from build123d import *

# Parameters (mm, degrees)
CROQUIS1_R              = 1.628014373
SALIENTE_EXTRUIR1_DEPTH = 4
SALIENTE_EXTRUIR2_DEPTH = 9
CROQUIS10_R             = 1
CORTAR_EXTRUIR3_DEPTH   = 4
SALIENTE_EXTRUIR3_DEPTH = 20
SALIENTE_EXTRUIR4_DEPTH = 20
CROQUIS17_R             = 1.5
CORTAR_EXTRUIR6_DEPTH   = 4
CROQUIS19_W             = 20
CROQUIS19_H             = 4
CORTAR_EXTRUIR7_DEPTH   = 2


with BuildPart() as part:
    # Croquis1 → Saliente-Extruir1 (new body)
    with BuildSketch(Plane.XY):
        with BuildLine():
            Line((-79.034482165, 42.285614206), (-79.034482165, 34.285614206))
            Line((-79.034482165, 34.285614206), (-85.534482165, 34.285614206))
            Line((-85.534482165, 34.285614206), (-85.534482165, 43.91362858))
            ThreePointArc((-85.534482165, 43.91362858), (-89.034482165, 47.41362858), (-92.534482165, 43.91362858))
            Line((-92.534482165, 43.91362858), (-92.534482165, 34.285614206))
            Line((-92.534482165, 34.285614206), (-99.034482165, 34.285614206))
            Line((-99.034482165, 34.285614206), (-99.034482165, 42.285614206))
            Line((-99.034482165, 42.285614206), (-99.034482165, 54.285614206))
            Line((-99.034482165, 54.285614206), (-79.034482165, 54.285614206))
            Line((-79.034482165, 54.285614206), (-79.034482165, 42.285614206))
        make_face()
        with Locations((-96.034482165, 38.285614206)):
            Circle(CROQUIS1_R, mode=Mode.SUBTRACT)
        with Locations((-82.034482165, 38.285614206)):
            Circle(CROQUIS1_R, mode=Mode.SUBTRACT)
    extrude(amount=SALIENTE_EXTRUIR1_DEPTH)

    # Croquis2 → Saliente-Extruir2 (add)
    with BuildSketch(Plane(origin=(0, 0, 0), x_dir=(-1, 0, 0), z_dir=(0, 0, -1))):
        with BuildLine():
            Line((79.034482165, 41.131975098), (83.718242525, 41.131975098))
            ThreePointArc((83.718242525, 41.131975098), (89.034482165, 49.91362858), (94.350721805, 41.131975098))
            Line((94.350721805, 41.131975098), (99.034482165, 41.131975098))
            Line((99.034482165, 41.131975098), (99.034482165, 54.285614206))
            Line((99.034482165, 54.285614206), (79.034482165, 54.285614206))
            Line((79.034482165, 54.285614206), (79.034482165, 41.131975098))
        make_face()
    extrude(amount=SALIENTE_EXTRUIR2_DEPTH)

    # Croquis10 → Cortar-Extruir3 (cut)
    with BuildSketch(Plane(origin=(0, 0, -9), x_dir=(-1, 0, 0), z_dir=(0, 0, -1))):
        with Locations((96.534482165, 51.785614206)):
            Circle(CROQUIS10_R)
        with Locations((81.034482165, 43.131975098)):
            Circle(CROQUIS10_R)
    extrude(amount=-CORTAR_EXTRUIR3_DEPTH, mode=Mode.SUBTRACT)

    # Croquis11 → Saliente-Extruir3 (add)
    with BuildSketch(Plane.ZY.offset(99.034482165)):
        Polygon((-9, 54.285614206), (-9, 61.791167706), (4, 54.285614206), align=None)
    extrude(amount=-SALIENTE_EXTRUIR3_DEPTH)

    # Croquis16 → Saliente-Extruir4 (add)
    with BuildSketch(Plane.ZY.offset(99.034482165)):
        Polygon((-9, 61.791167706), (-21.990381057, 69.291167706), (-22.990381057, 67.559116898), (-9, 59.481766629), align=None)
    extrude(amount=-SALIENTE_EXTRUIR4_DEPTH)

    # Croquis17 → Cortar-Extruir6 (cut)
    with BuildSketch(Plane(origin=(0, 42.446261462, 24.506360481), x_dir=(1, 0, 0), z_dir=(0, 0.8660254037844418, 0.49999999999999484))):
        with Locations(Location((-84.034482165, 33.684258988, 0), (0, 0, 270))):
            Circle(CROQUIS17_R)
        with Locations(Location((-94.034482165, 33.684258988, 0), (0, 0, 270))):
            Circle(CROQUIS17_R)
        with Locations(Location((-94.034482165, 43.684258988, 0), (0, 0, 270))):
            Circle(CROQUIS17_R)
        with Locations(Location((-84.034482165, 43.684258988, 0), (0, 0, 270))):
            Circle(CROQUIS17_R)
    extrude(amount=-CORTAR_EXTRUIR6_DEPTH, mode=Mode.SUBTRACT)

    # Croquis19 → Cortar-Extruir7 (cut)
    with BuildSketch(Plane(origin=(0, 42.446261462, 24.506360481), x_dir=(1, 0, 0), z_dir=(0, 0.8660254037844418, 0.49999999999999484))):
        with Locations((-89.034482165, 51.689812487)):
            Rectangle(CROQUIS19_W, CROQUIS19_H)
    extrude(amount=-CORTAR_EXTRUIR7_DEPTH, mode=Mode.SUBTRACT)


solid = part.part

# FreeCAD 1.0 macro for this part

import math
import FreeCAD as App
import Part
import Sketcher
from FreeCAD import Vector
Q = App.Units.Quantity

doc = App.newDocument("Part")
params = doc.addObject("Spreadsheet::Sheet", "Params")
for row, (alias, value) in enumerate([
    ("sketch1_radius", "3.5 mm"),
    ("sketch1_width", "20 mm"),
    ("pad1_length", "4 mm"),
    ("sketch2_radius", "6 mm"),
    ("sketch2_width", "20 mm"),
    ("pad2_length", "9 mm"),
    ("sketch3_diameter", "2 mm"),
    ("pocket1_length", "4 mm"),
    ("sketch4_height", "13 mm"),
    ("pad3_length", "20 mm"),
    ("sketch5_length", "15 mm"),
    ("sketch5_length2", "2 mm"),
    ("pad4_length", "20 mm"),
    ("sketch6_diameter", "3 mm"),
    ("pocket2_length", "4 mm"),
    ("sketch7_width", "20 mm"),
    ("sketch7_height", "4 mm"),
    ("pocket3_length", "2 mm"),
], start=1):
    params.set(f"A{row}", alias)
    params.set(f"B{row}", "=" + value)
    params.setAlias(f"B{row}", alias)

body = doc.addObject("PartDesign::Body", "Body")

sketch1 = doc.addObject("Sketcher::SketchObject", "Sketch")
body.addObject(sketch1)
sketch1.AttachmentSupport = (doc.XY_Plane, [""])
sketch1.MapMode = "FlatFace"
sketch1.addGeometry([
    Part.LineSegment(Vector(-85.5, 34.3, 0), Vector(-79, 34.3, 0)),
    Part.LineSegment(Vector(-79, 34.3, 0), Vector(-79, 54.3, 0)),
    Part.LineSegment(Vector(-79, 54.3, 0), Vector(-99, 54.3, 0)),
    Part.LineSegment(Vector(-99, 54.3, 0), Vector(-99, 34.3, 0)),
    Part.LineSegment(Vector(-99, 34.3, 0), Vector(-92.5, 34.3, 0)),
    Part.LineSegment(Vector(-92.5, 34.3, 0), Vector(-92.5, 43.9, 0)),
    Part.ArcOfCircle(Part.Circle(Vector(-89, 43.9, 0), Vector(0, 0, 1), 3.5), math.radians(0), math.radians(180)),
    Part.LineSegment(Vector(-85.5, 43.9, 0), Vector(-85.5, 34.3, 0)),
    Part.Circle(Vector(-82, 38.3, 0), Vector(0, 0, 1), 1.6),
    Part.Circle(Vector(-96, 38.3, 0), Vector(0, 0, 1), 1.6),
], False)
sketch1.addConstraint([
    Sketcher.Constraint("Coincident", 0, 2, 1, 1),
    Sketcher.Constraint("Coincident", 1, 2, 2, 1),
    Sketcher.Constraint("Coincident", 2, 2, 3, 1),
    Sketcher.Constraint("Coincident", 3, 2, 4, 1),
    Sketcher.Constraint("Coincident", 4, 2, 5, 1),
    Sketcher.Constraint("Tangent", 5, 2, 6, 2),
    Sketcher.Constraint("Tangent", 6, 1, 7, 1),
    Sketcher.Constraint("Coincident", 7, 2, 0, 1),
    Sketcher.Constraint("Horizontal", 0),
    Sketcher.Constraint("Vertical", 1),
    Sketcher.Constraint("Horizontal", 2),
    Sketcher.Constraint("Vertical", 3),
    Sketcher.Constraint("Horizontal", 4),
    Sketcher.Constraint("Vertical", 5),
    Sketcher.Constraint("Vertical", 7),
    Sketcher.Constraint("Equal", 8, 9),
    Sketcher.Constraint("Horizontal", 8, 3, 9, 3),
    Sketcher.Constraint("Horizontal", 0, 2, 3, 2),
    Sketcher.Constraint("Equal", 0, 4),
    Sketcher.Constraint("Equal", 2, 1),
    Sketcher.Constraint("Radius", 6, Q("3.5 mm")),
    Sketcher.Constraint("DistanceX", 2, 2, 2, 1, Q("20 mm")),
    Sketcher.Constraint("DistanceX", 6, 3, 8, 3, Q("7 mm")),
    Sketcher.Constraint("DistanceX", 9, 3, 6, 3, Q("7 mm")),
    Sketcher.Constraint("DistanceY", 0, 2, 8, 3, Q("4 mm")),
    Sketcher.Constraint("Diameter", 8, Q("3.256029 mm")),
    Sketcher.Constraint("DistanceY", 5, 1, 5, 2, Q("9.628014 mm")),
    Sketcher.Constraint("DistanceY", -1, 1, 6, 3, Q("43.913629 mm")),
    Sketcher.Constraint("DistanceX", 6, 3, -1, 1, Q("89.034482 mm")),
])
sketch1.setExpression("Constraints[20]", "Params.sketch1_radius")
sketch1.setExpression("Constraints[21]", "Params.sketch1_width")
pad1 = doc.addObject("PartDesign::Pad", "Pad")
body.addObject(pad1)
pad1.Profile = sketch1
pad1.setExpression("Length", "Params.pad1_length")

sketch2 = doc.addObject("Sketcher::SketchObject", "Sketch001")
body.addObject(sketch2)
sketch2.AttachmentSupport = (doc.XY_Plane, [""])
sketch2.MapMode = "FlatFace"
sketch2.addGeometry([
    Part.LineSegment(Vector(-79, 41.1, 0), Vector(-83.7, 41.1, 0)),
    Part.ArcOfCircle(Part.Circle(Vector(-89, 43.9, 0), Vector(0, 0, 1), 6), math.radians(-28), math.radians(208)),
    Part.LineSegment(Vector(-94.4, 41.1, 0), Vector(-99, 41.1, 0)),
    Part.LineSegment(Vector(-99, 41.1, 0), Vector(-99, 54.3, 0)),
    Part.LineSegment(Vector(-99, 54.3, 0), Vector(-79, 54.3, 0)),
    Part.LineSegment(Vector(-79, 54.3, 0), Vector(-79, 41.1, 0)),
], False)
sketch2.addConstraint([
    Sketcher.Constraint("Coincident", 0, 2, 1, 1),
    Sketcher.Constraint("Coincident", 1, 2, 2, 1),
    Sketcher.Constraint("Coincident", 2, 2, 3, 1),
    Sketcher.Constraint("Coincident", 3, 2, 4, 1),
    Sketcher.Constraint("Coincident", 4, 2, 5, 1),
    Sketcher.Constraint("Coincident", 5, 2, 0, 1),
    Sketcher.Constraint("Horizontal", 0),
    Sketcher.Constraint("Horizontal", 2),
    Sketcher.Constraint("Vertical", 3),
    Sketcher.Constraint("Horizontal", 4),
    Sketcher.Constraint("Vertical", 5),
    Sketcher.Constraint("Horizontal", 0, 2, 1, 2),
    Sketcher.Constraint("Equal", 0, 2),
    Sketcher.Constraint("Radius", 1, Q("6 mm")),
    Sketcher.Constraint("DistanceX", 4, 1, 4, 2, Q("20 mm")),
    Sketcher.Constraint("DistanceX", 0, 2, 0, 1, Q("4.68376 mm")),
    Sketcher.Constraint("DistanceY", 3, 1, 3, 2, Q("13.153639 mm")),
    Sketcher.Constraint("DistanceY", -1, 1, 1, 3, Q("43.913629 mm")),
    Sketcher.Constraint("DistanceX", 1, 2, -1, 1, Q("94.350722 mm")),
])
sketch2.setExpression("Constraints[13]", "Params.sketch2_radius")
sketch2.setExpression("Constraints[14]", "Params.sketch2_width")
pad2 = doc.addObject("PartDesign::Pad", "Pad001")
body.addObject(pad2)
pad2.Profile = sketch2
pad2.setExpression("Length", "Params.pad2_length")
pad2.Reversed = True

sketch3 = doc.addObject("Sketcher::SketchObject", "Sketch002")
body.addObject(sketch3)
sketch3.AttachmentSupport = (doc.XY_Plane, [""])
sketch3.MapMode = "FlatFace"
sketch3.AttachmentOffset = App.Placement(Vector(0, 0, -9), App.Rotation())
sketch3.addGeometry([
    Part.Circle(Vector(-96.5, 51.8, 0), Vector(0, 0, 1), 1),
    Part.Circle(Vector(-81, 43.1, 0), Vector(0, 0, 1), 1),
], False)
sketch3.addConstraint([
    Sketcher.Constraint("Equal", 0, 1),
    Sketcher.Constraint("Diameter", 0, Q("2 mm")),
    Sketcher.Constraint("DistanceX", 0, 3, 1, 3, Q("15.5 mm")),
    Sketcher.Constraint("DistanceY", 1, 3, 0, 3, Q("8.653639 mm")),
    Sketcher.Constraint("DistanceX", 0, 3, -1, 1, Q("96.534482 mm")),
    Sketcher.Constraint("DistanceY", -1, 1, 0, 3, Q("51.785614 mm")),
])
sketch3.setExpression("Constraints[1]", "Params.sketch3_diameter")
pocket1 = doc.addObject("PartDesign::Pocket", "Pocket")
body.addObject(pocket1)
pocket1.Profile = sketch3
pocket1.setExpression("Length", "Params.pocket1_length")
pocket1.Reversed = True

sketch4 = doc.addObject("Sketcher::SketchObject", "Sketch003")
body.addObject(sketch4)
sketch4.AttachmentSupport = (doc.YZ_Plane, [""])
sketch4.MapMode = "FlatFace"
sketch4.AttachmentOffset = App.Placement(Vector(0, 0, -99.034482), App.Rotation())
sketch4.addGeometry([
    Part.LineSegment(Vector(62, -9, 0), Vector(54, -9, 0)),
    Part.LineSegment(Vector(54, -9, 0), Vector(54, 4, 0)),
    Part.LineSegment(Vector(54, 4, 0), Vector(62, -9, 0)),
], False)
sketch4.addConstraint([
    Sketcher.Constraint("Coincident", 0, 2, 1, 1),
    Sketcher.Constraint("Coincident", 1, 2, 2, 1),
    Sketcher.Constraint("Coincident", 2, 2, 0, 1),
    Sketcher.Constraint("Horizontal", 0),
    Sketcher.Constraint("Vertical", 1),
    Sketcher.Constraint("DistanceY", 1, 1, 1, 2, Q("13 mm")),
    Sketcher.Constraint("Angle", 2, Q("-60 deg")),
    Sketcher.Constraint("DistanceY", 0, 2, -1, 1, Q("9 mm")),
    Sketcher.Constraint("DistanceX", -1, 1, 0, 2, Q("54.285614 mm")),
])
sketch4.setExpression("Constraints[5]", "Params.sketch4_height")
pad3 = doc.addObject("PartDesign::Pad", "Pad002")
body.addObject(pad3)
pad3.Profile = sketch4
pad3.setExpression("Length", "Params.pad3_length")

sketch5 = doc.addObject("Sketcher::SketchObject", "Sketch004")
body.addObject(sketch5)
sketch5.AttachmentSupport = (doc.YZ_Plane, [""])
sketch5.MapMode = "FlatFace"
sketch5.AttachmentOffset = App.Placement(Vector(0, 0, -99.034482), App.Rotation())
sketch5.addGeometry([
    Part.LineSegment(Vector(61.8, -9, 0), Vector(69.3, -22, 0)),
    Part.LineSegment(Vector(69.3, -22, 0), Vector(67.6, -23, 0)),
    Part.LineSegment(Vector(67.6, -23, 0), Vector(59.5, -9, 0)),
    Part.LineSegment(Vector(59.5, -9, 0), Vector(61.8, -9, 0)),
], False)
sketch5.addConstraint([
    Sketcher.Constraint("Coincident", 0, 2, 1, 1),
    Sketcher.Constraint("Coincident", 1, 2, 2, 1),
    Sketcher.Constraint("Coincident", 2, 2, 3, 1),
    Sketcher.Constraint("Coincident", 3, 2, 0, 1),
    Sketcher.Constraint("Horizontal", 3),
    Sketcher.Constraint("Perpendicular", 0, 1),
    Sketcher.Constraint("Perpendicular", 1, 2),
    Sketcher.Constraint("Angle", 0, Q("-60 deg")),
    Sketcher.Constraint("Distance", 0, Q("15 mm")),
    Sketcher.Constraint("Distance", 1, Q("2 mm")),
    Sketcher.Constraint("DistanceY", 2, 2, -1, 1, Q("9 mm")),
    Sketcher.Constraint("DistanceX", -1, 1, 0, 2, Q("69.291168 mm")),
])
sketch5.setExpression("Constraints[8]", "Params.sketch5_length")
sketch5.setExpression("Constraints[9]", "Params.sketch5_length2")
pad4 = doc.addObject("PartDesign::Pad", "Pad003")
body.addObject(pad4)
pad4.Profile = sketch5
pad4.setExpression("Length", "Params.pad4_length")

sketch6 = doc.addObject("Sketcher::SketchObject", "Sketch005")
body.addObject(sketch6)
sketch6.Placement = App.Placement(Vector(0, 42.446261, 24.50636), App.Rotation(Vector(1, 0, 0), Vector(0, 0.5, -0.866025404), Vector(0, 0.866025404, 0.5), "ZXY"))
sketch6.addGeometry([
    Part.Circle(Vector(-84, 33.7, 0), Vector(0, 0, 1), 1.5),
    Part.Circle(Vector(-94, 33.7, 0), Vector(0, 0, 1), 1.5),
    Part.Circle(Vector(-94, 43.7, 0), Vector(0, 0, 1), 1.5),
    Part.Circle(Vector(-84, 43.7, 0), Vector(0, 0, 1), 1.5),
], False)
sketch6.addConstraint([
    Sketcher.Constraint("Equal", 0, 1),
    Sketcher.Constraint("Equal", 1, 2),
    Sketcher.Constraint("Equal", 2, 3),
    Sketcher.Constraint("Horizontal", 0, 3, 1, 3),
    Sketcher.Constraint("Horizontal", 2, 3, 3, 3),
    Sketcher.Constraint("Vertical", 1, 3, 2, 3),
    Sketcher.Constraint("Vertical", 0, 3, 3, 3),
    Sketcher.Constraint("Diameter", 0, Q("3 mm")),
    Sketcher.Constraint("DistanceX", 1, 3, 0, 3, Q("10 mm")),
    Sketcher.Constraint("DistanceY", 1, 3, 2, 3, Q("10 mm")),
    Sketcher.Constraint("DistanceY", -1, 1, 0, 3, Q("33.684259 mm")),
    Sketcher.Constraint("DistanceX", 0, 3, -1, 1, Q("84.034482 mm")),
])
sketch6.setExpression("Constraints[7]", "Params.sketch6_diameter")
pocket2 = doc.addObject("PartDesign::Pocket", "Pocket001")
body.addObject(pocket2)
pocket2.Profile = sketch6
pocket2.setExpression("Length", "Params.pocket2_length")

sketch7 = doc.addObject("Sketcher::SketchObject", "Sketch006")
body.addObject(sketch7)
sketch7.Placement = App.Placement(Vector(0, 42.446261, 24.50636), App.Rotation(Vector(1, 0, 0), Vector(0, 0.5, -0.866025404), Vector(0, 0.866025404, 0.5), "ZXY"))
sketch7.addGeometry([
    Part.LineSegment(Vector(-99, 53.7, 0), Vector(-99, 49.7, 0)),
    Part.LineSegment(Vector(-99, 49.7, 0), Vector(-79, 49.7, 0)),
    Part.LineSegment(Vector(-79, 49.7, 0), Vector(-79, 53.7, 0)),
    Part.LineSegment(Vector(-79, 53.7, 0), Vector(-99, 53.7, 0)),
], False)
sketch7.addConstraint([
    Sketcher.Constraint("Coincident", 0, 2, 1, 1),
    Sketcher.Constraint("Coincident", 1, 2, 2, 1),
    Sketcher.Constraint("Coincident", 2, 2, 3, 1),
    Sketcher.Constraint("Coincident", 3, 2, 0, 1),
    Sketcher.Constraint("Vertical", 0),
    Sketcher.Constraint("Horizontal", 1),
    Sketcher.Constraint("Vertical", 2),
    Sketcher.Constraint("Horizontal", 3),
    Sketcher.Constraint("DistanceX", 1, 1, 1, 2, Q("20 mm")),
    Sketcher.Constraint("DistanceY", 0, 2, 0, 1, Q("4 mm")),
    Sketcher.Constraint("DistanceX", 0, 2, -1, 1, Q("99.034482 mm")),
    Sketcher.Constraint("DistanceY", -1, 1, 0, 2, Q("49.689813 mm")),
])
sketch7.setExpression("Constraints[8]", "Params.sketch7_width")
sketch7.setExpression("Constraints[9]", "Params.sketch7_height")
pocket3 = doc.addObject("PartDesign::Pocket", "Pocket002")
body.addObject(pocket3)
pocket3.Profile = sketch7
pocket3.setExpression("Length", "Params.pocket3_length")

doc.recompute()
